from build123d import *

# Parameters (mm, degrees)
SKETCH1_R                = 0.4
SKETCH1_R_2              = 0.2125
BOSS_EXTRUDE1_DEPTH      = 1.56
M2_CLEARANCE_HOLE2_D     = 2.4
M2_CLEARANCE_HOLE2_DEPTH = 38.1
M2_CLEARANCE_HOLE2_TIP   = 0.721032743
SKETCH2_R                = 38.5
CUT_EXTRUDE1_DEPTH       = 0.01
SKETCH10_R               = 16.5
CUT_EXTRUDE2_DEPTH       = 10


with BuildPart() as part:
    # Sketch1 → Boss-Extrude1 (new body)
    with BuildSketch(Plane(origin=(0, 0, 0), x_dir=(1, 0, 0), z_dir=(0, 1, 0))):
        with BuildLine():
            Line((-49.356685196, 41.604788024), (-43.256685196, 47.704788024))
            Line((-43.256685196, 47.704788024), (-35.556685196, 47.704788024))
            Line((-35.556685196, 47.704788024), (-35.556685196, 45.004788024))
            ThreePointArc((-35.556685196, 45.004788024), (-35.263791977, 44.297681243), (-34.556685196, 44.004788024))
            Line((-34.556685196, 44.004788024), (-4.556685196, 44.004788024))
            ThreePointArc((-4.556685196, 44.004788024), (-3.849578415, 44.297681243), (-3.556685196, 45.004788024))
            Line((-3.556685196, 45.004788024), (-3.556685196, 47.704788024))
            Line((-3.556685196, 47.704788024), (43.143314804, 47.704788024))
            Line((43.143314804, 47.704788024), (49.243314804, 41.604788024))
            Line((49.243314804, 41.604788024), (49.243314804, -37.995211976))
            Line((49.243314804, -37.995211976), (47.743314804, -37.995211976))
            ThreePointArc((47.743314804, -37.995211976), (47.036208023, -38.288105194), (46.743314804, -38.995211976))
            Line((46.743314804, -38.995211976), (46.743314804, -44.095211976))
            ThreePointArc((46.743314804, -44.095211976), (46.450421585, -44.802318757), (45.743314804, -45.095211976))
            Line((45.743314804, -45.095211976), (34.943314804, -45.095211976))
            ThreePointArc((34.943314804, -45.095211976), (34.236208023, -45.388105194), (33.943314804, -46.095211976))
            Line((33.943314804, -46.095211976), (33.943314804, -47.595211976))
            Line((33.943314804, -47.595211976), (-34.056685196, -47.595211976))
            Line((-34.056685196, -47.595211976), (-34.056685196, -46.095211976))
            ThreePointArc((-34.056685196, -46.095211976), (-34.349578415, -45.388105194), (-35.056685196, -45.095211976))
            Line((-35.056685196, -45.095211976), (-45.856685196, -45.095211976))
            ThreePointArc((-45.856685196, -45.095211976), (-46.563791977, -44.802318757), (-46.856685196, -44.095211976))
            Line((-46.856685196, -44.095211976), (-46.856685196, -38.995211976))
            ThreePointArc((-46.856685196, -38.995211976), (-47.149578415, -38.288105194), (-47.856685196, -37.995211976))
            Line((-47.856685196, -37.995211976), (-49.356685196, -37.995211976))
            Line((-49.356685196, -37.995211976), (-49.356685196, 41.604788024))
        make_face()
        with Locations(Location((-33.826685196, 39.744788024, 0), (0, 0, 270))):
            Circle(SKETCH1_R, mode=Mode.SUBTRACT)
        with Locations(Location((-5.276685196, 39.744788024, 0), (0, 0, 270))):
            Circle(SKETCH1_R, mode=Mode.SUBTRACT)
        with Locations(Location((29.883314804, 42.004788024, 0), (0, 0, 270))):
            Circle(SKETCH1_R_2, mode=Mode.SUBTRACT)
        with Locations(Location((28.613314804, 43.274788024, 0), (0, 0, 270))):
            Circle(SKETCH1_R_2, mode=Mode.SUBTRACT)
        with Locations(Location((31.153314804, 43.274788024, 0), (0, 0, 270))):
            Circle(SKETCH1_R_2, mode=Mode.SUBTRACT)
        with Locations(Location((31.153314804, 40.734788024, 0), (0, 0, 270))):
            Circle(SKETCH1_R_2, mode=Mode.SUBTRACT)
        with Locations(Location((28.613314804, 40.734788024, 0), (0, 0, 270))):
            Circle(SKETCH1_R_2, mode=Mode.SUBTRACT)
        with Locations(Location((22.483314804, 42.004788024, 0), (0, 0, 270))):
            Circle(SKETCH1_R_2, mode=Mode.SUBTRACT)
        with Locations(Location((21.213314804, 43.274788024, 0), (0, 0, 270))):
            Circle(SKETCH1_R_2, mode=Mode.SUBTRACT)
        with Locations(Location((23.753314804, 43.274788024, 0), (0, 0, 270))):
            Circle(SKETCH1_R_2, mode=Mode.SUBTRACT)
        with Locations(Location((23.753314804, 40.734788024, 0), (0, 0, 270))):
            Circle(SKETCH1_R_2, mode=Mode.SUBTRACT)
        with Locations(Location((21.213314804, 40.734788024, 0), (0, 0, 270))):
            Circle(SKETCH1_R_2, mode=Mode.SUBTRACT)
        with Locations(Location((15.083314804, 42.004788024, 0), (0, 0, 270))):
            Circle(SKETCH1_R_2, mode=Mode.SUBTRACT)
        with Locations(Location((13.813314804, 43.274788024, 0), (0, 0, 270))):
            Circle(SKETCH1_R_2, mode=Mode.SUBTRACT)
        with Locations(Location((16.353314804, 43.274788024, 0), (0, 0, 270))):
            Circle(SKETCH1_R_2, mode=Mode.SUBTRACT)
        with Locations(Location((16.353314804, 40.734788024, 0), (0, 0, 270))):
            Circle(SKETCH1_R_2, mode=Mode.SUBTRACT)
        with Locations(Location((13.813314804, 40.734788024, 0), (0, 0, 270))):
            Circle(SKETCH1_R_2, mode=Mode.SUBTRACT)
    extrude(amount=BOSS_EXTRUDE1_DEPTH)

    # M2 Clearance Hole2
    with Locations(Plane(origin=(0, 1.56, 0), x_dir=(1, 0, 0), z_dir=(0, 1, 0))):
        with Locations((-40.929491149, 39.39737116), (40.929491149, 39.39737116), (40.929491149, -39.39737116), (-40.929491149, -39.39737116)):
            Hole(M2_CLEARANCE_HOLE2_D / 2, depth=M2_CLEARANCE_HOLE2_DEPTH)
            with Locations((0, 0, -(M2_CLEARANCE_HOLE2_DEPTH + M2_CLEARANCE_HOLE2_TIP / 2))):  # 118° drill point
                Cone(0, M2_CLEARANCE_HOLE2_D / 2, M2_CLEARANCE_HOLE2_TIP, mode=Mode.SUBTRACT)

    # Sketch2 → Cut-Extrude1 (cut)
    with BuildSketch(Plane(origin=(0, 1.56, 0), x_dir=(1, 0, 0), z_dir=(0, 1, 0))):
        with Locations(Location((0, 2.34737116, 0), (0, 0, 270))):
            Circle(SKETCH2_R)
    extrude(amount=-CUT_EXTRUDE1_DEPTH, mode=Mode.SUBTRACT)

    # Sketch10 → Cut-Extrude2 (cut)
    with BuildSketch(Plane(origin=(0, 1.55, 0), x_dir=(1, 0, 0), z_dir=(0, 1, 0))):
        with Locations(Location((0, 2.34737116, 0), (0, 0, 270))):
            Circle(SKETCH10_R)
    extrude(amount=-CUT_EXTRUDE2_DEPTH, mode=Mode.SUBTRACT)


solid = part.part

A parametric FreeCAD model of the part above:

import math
import FreeCAD as App
import Part
import Sketcher
Q = App.Units.Quantity

doc = App.newDocument("Part")
params = doc.addObject("Spreadsheet::Sheet", "Params")
for row, (alias, value) in enumerate([
    ("sketch1_radius", "1 mm"),
    ("sketch1_diameter", "0.8 mm"),
    ("sketch1_width", "68 mm"),
    ("sketch1_width2", "30 mm"),
    ("sketch1_width3", "1.5 mm"),
    ("pad1_length", "1.56 mm"),
    ("sketch2_diameter", "2.4 mm"),
    ("hole_diameter", "2.4 mm"),
    ("hole_depth", "38.1 mm"),
    ("sketch3_diameter", "77 mm"),
    ("pocket1_length", "0.01 mm"),
    ("sketch4_diameter", "33 mm"),
    ("pocket2_length", "10 mm"),
], start=1):
    params.set(f"A{row}", alias)
    params.set(f"B{row}", "=" + value)
    params.setAlias(f"B{row}", alias)

body = doc.addObject("PartDesign::Body", "Body")

# Sketch on XZ plane
sketch1 = doc.addObject("Sketcher::SketchObject", "Sketch")
body.addObject(sketch1)
sketch1.AttachmentSupport = (doc.XZ_Plane, [""])
sketch1.MapMode = "FlatFace"
sketch1.addGeometry([
    Part.LineSegment(App.Vector(-43.26, -47.7, 0), App.Vector(-49.36, -41.6, 0)),  # 0
    Part.LineSegment(App.Vector(-49.36, -41.6, 0), App.Vector(-49.36, 38, 0)),  # 1
    Part.LineSegment(App.Vector(-49.36, 38, 0), App.Vector(-47.86, 38, 0)),  # 2
    Part.ArcOfCircle(Part.Circle(App.Vector(-47.86, 39, 0), App.Vector(0, 0, 1), 1), math.radians(-90), math.radians(0)),  # 3
    Part.LineSegment(App.Vector(-46.86, 39, 0), App.Vector(-46.86, 44.1, 0)),  # 4
    Part.ArcOfCircle(Part.Circle(App.Vector(-45.86, 44.1, 0), App.Vector(0, 0, 1), 1), math.radians(90), math.radians(180)),  # 5
    Part.LineSegment(App.Vector(-45.86, 45.1, 0), App.Vector(-35.06, 45.1, 0)),  # 6
    Part.ArcOfCircle(Part.Circle(App.Vector(-35.06, 46.1, 0), App.Vector(0, 0, 1), 1), math.radians(-90), math.radians(0)),  # 7
    Part.LineSegment(App.Vector(-34.06, 46.1, 0), App.Vector(-34.06, 47.6, 0)),  # 8
    Part.LineSegment(App.Vector(-34.06, 47.6, 0), App.Vector(33.94, 47.6, 0)),  # 9
    Part.LineSegment(App.Vector(33.94, 47.6, 0), App.Vector(33.94, 46.1, 0)),  # 10
    Part.ArcOfCircle(Part.Circle(App.Vector(34.94, 46.1, 0), App.Vector(0, 0, 1), 1), math.radians(180), math.radians(270)),  # 11
    Part.LineSegment(App.Vector(34.94, 45.1, 0), App.Vector(45.74, 45.1, 0)),  # 12
    Part.ArcOfCircle(Part.Circle(App.Vector(45.74, 44.1, 0), App.Vector(0, 0, 1), 1), math.radians(0), math.radians(90)),  # 13
    Part.LineSegment(App.Vector(46.74, 44.1, 0), App.Vector(46.74, 39, 0)),  # 14
    Part.ArcOfCircle(Part.Circle(App.Vector(47.74, 39, 0), App.Vector(0, 0, 1), 1), math.radians(180), math.radians(270)),  # 15
    Part.LineSegment(App.Vector(47.74, 38, 0), App.Vector(49.24, 38, 0)),  # 16
    Part.LineSegment(App.Vector(49.24, 38, 0), App.Vector(49.24, -41.6, 0)),  # 17
    Part.LineSegment(App.Vector(49.24, -41.6, 0), App.Vector(43.14, -47.7, 0)),  # 18
    Part.LineSegment(App.Vector(43.14, -47.7, 0), App.Vector(-3.56, -47.7, 0)),  # 19
    Part.LineSegment(App.Vector(-3.56, -47.7, 0), App.Vector(-3.56, -45, 0)),  # 20
    Part.ArcOfCircle(Part.Circle(App.Vector(-4.56, -45, 0), App.Vector(0, 0, 1), 1), math.radians(0), math.radians(90)),  # 21
    Part.LineSegment(App.Vector(-4.56, -44, 0), App.Vector(-34.56, -44, 0)),  # 22
    Part.ArcOfCircle(Part.Circle(App.Vector(-34.56, -45, 0), App.Vector(0, 0, 1), 1), math.radians(90), math.radians(180)),  # 23
    Part.LineSegment(App.Vector(-35.56, -45, 0), App.Vector(-35.56, -47.7, 0)),  # 24
    Part.LineSegment(App.Vector(-35.56, -47.7, 0), App.Vector(-43.26, -47.7, 0)),  # 25
    Part.Circle(App.Vector(31.15, -40.73, 0), App.Vector(0, 0, 1), 0.21),  # 26
    Part.Circle(App.Vector(28.61, -40.73, 0), App.Vector(0, 0, 1), 0.21),  # 27
    Part.Circle(App.Vector(23.75, -40.73, 0), App.Vector(0, 0, 1), 0.21),  # 28
    Part.Circle(App.Vector(21.21, -40.73, 0), App.Vector(0, 0, 1), 0.21),  # 29
    Part.Circle(App.Vector(16.35, -40.73, 0), App.Vector(0, 0, 1), 0.21),  # 30
    Part.Circle(App.Vector(13.81, -40.73, 0), App.Vector(0, 0, 1), 0.21),  # 31
    Part.Circle(App.Vector(-5.28, -39.74, 0), App.Vector(0, 0, 1), 0.4),  # 32
    Part.Circle(App.Vector(-33.83, -39.74, 0), App.Vector(0, 0, 1), 0.4),  # 33
    Part.Circle(App.Vector(29.88, -42, 0), App.Vector(0, 0, 1), 0.21),  # 34
    Part.Circle(App.Vector(22.48, -42, 0), App.Vector(0, 0, 1), 0.21),  # 35
    Part.Circle(App.Vector(15.08, -42, 0), App.Vector(0, 0, 1), 0.21),  # 36
    Part.Circle(App.Vector(31.15, -43.27, 0), App.Vector(0, 0, 1), 0.21),  # 37
    Part.Circle(App.Vector(28.61, -43.27, 0), App.Vector(0, 0, 1), 0.21),  # 38
    Part.Circle(App.Vector(23.75, -43.27, 0), App.Vector(0, 0, 1), 0.21),  # 39
    Part.Circle(App.Vector(21.21, -43.27, 0), App.Vector(0, 0, 1), 0.21),  # 40
    Part.Circle(App.Vector(16.35, -43.27, 0), App.Vector(0, 0, 1), 0.21),  # 41
    Part.Circle(App.Vector(13.81, -43.27, 0), App.Vector(0, 0, 1), 0.21),  # 42
], False)
sketch1.addConstraint([
    Sketcher.Constraint("Coincident", 0, 2, 1, 1),
    Sketcher.Constraint("Coincident", 1, 2, 2, 1),
    Sketcher.Constraint("Tangent", 2, 2, 3, 1),
    Sketcher.Constraint("Tangent", 3, 2, 4, 1),
    Sketcher.Constraint("Tangent", 4, 2, 5, 2),
    Sketcher.Constraint("Tangent", 5, 1, 6, 1),
    Sketcher.Constraint("Tangent", 6, 2, 7, 1),
    Sketcher.Constraint("Tangent", 7, 2, 8, 1),
    Sketcher.Constraint("Coincident", 8, 2, 9, 1),
    Sketcher.Constraint("Coincident", 9, 2, 10, 1),
    Sketcher.Constraint("Tangent", 10, 2, 11, 1),
    Sketcher.Constraint("Tangent", 11, 2, 12, 1),
    Sketcher.Constraint("Tangent", 12, 2, 13, 2),
    Sketcher.Constraint("Tangent", 13, 1, 14, 1),
    Sketcher.Constraint("Tangent", 14, 2, 15, 1),
    Sketcher.Constraint("Tangent", 15, 2, 16, 1),
    Sketcher.Constraint("Coincident", 16, 2, 17, 1),
    Sketcher.Constraint("Coincident", 17, 2, 18, 1),
    Sketcher.Constraint("Coincident", 18, 2, 19, 1),
    Sketcher.Constraint("Coincident", 19, 2, 20, 1),
    Sketcher.Constraint("Tangent", 20, 2, 21, 1),
    Sketcher.Constraint("Tangent", 21, 2, 22, 1),
    Sketcher.Constraint("Tangent", 22, 2, 23, 1),
    Sketcher.Constraint("Tangent", 23, 2, 24, 1),
    Sketcher.Constraint("Coincident", 24, 2, 25, 1),
    Sketcher.Constraint("Coincident", 25, 2, 0, 1),
    Sketcher.Constraint("Vertical", 1),
    Sketcher.Constraint("Horizontal", 2),
    Sketcher.Constraint("Vertical", 4),
    Sketcher.Constraint("Horizontal", 6),
    Sketcher.Constraint("Vertical", 8),
    Sketcher.Constraint("Horizontal", 9),
    Sketcher.Constraint("Vertical", 10),
    Sketcher.Constraint("Horizontal", 12),
    Sketcher.Constraint("Vertical", 14),
    Sketcher.Constraint("Horizontal", 16),
    Sketcher.Constraint("Vertical", 17),
    Sketcher.Constraint("Horizontal", 19),
    Sketcher.Constraint("Vertical", 20),
    Sketcher.Constraint("Horizontal", 22),
    Sketcher.Constraint("Vertical", 24),
    Sketcher.Constraint("Horizontal", 25),
    Sketcher.Constraint("Equal", 3, 5),
    Sketcher.Constraint("Equal", 5, 7),
    Sketcher.Constraint("Equal", 7, 11),
    Sketcher.Constraint("Equal", 11, 13),
    Sketcher.Constraint("Equal", 13, 15),
    Sketcher.Constraint("Equal", 15, 21),
    Sketcher.Constraint("Equal", 21, 23),
    Sketcher.Constraint("Equal", 26, 27),
    Sketcher.Constraint("Equal", 27, 28),
    Sketcher.Constraint("Equal", 28, 29),
    Sketcher.Constraint("Equal", 29, 30),
    Sketcher.Constraint("Equal", 30, 31),
    Sketcher.Constraint("Equal", 32, 33),
    Sketcher.Constraint("Equal", 31, 34),
    Sketcher.Constraint("Equal", 34, 35),
    Sketcher.Constraint("Equal", 35, 36),
    Sketcher.Constraint("Equal", 36, 37),
    Sketcher.Constraint("Equal", 37, 38),
    Sketcher.Constraint("Equal", 38, 39),
    Sketcher.Constraint("Equal", 39, 40),
    Sketcher.Constraint("Equal", 40, 41),
    Sketcher.Constraint("Equal", 41, 42),
    Sketcher.Constraint("Perpendicular", 0, 18),
    Sketcher.Constraint("Horizontal", 7, 3, 11, 3),
    Sketcher.Constraint("Horizontal", 3, 3, 15, 3),
    Sketcher.Constraint("Horizontal", 26, 3, 27, 3),
    Sketcher.Constraint("Horizontal", 27, 3, 28, 3),
    Sketcher.Constraint("Horizontal", 28, 3, 29, 3),
    Sketcher.Constraint("Horizontal", 29, 3, 30, 3),
    Sketcher.Constraint("Horizontal", 30, 3, 31, 3),
    Sketcher.Constraint("Horizontal", 32, 3, 33, 3),
    Sketcher.Constraint("Horizontal", 34, 3, 35, 3),
    Sketcher.Constraint("Horizontal", 35, 3, 36, 3),
    Sketcher.Constraint("Horizontal", 37, 3, 38, 3),
    Sketcher.Constraint("Horizontal", 38, 3, 39, 3),
    Sketcher.Constraint("Horizontal", 39, 3, 40, 3),
    Sketcher.Constraint("Horizontal", 40, 3, 41, 3),
    Sketcher.Constraint("Horizontal", 41, 3, 42, 3),
    Sketcher.Constraint("Horizontal", 0, 2, 17, 2),
    Sketcher.Constraint("Horizontal", 19, 2, 24, 2),
    Sketcher.Constraint("Vertical", 26, 3, 37, 3),
    Sketcher.Constraint("Vertical", 27, 3, 38, 3),
    Sketcher.Constraint("Vertical", 28, 3, 39, 3),
    Sketcher.Constraint("Vertical", 29, 3, 40, 3),
    Sketcher.Constraint("Vertical", 30, 3, 41, 3),
    Sketcher.Constraint("Vertical", 31, 3, 42, 3),
    Sketcher.Constraint("Equal", 6, 12),
    Sketcher.Constraint("Equal", 2, 16),
    Sketcher.Constraint("Equal", 16, 8),
    Sketcher.Constraint("Equal", 0, 18),
    Sketcher.Constraint("Radius", 3, Q("1 mm")),
    Sketcher.Constraint("Diameter", 32, Q("0.8 mm")),
    Sketcher.Constraint("DistanceX", 9, 1, 9, 2, Q("68 mm")),
    Sketcher.Constraint("DistanceX", 22, 2, 22, 1, Q("30 mm")),
    Sketcher.Constraint("Diameter", 26, Q("0.425 mm")),
    Sketcher.Constraint("DistanceX", 2, 1, 2, 2, Q("1.5 mm")),
    Sketcher.Constraint("DistanceX", 6, 1, 6, 2, Q("10.8 mm")),
    Sketcher.Constraint("DistanceX", 19, 2, 19, 1, Q("46.7 mm")),
    Sketcher.Constraint("DistanceX", 25, 2, 25, 1, Q("7.7 mm")),
    Sketcher.Constraint("DistanceY", 1, 1, 1, 2, Q("79.6 mm")),
    Sketcher.Constraint("DistanceY", 4, 1, 4, 2, Q("5.1 mm")),
    Sketcher.Constraint("DistanceY", 20, 1, 20, 2, Q("2.7 mm")),
    Sketcher.Constraint("DistanceX", 28, 3, 26, 3, Q("7.4 mm")),
    Sketcher.Constraint("DistanceX", 29, 3, 27, 3, Q("7.4 mm")),
    Sketcher.Constraint("DistanceX", 30, 3, 28, 3, Q("7.4 mm")),
    Sketcher.Constraint("DistanceX", 31, 3, 29, 3, Q("7.4 mm")),
    Sketcher.Constraint("DistanceX", 35, 3, 34, 3, Q("7.4 mm")),
    Sketcher.Constraint("DistanceX", 36, 3, 35, 3, Q("7.4 mm")),
    Sketcher.Constraint("DistanceY", 34, 3, 17, 2, Q("0.4 mm")),
    Sketcher.Constraint("DistanceX", 21, 3, 26, 3, Q("35.71 mm")),
    Sketcher.Constraint("DistanceY", 21, 3, 26, 3, Q("4.27 mm")),
    Sketcher.Constraint("DistanceX", 27, 3, 26, 3, Q("2.54 mm")),
    Sketcher.Constraint("DistanceX", 32, 3, 21, 3, Q("0.72 mm")),
    Sketcher.Constraint("DistanceY", 21, 3, 32, 3, Q("5.26 mm")),
    Sketcher.Constraint("DistanceX", 23, 3, 33, 3, Q("0.73 mm")),
    Sketcher.Constraint("DistanceX", 34, 3, 26, 3, Q("1.27 mm")),
    Sketcher.Constraint("DistanceY", 37, 3, 34, 3, Q("1.27 mm")),
    Sketcher.Constraint("DistanceY", -1, 1, 3, 3, Q("38.995212 mm")),
    Sketcher.Constraint("DistanceX", 3, 3, -1, 1, Q("47.856685 mm")),
])
sketch1.setExpression("Constraints[92]", "Params.sketch1_radius")
sketch1.setExpression("Constraints[93]", "Params.sketch1_diameter")
sketch1.setExpression("Constraints[94]", "Params.sketch1_width")
sketch1.setExpression("Constraints[95]", "Params.sketch1_width2")
sketch1.setExpression("Constraints[97]", "Params.sketch1_width3")
pad1 = doc.addObject("PartDesign::Pad", "Pad")
body.addObject(pad1)
pad1.Profile = sketch1
pad1.setExpression("Length", "Params.pad1_length")
pad1.Reversed = True

# Sketch on XZ plane
sketch2 = doc.addObject("Sketcher::SketchObject", "Sketch001")
body.addObject(sketch2)
sketch2.AttachmentSupport = (doc.XZ_Plane, [""])
sketch2.MapMode = "FlatFace"
sketch2.AttachmentOffset = App.Placement(App.Vector(0, 0, -1.56), App.Rotation())
sketch2.addGeometry([
    Part.Circle(App.Vector(-40.9, -39.4, 0), App.Vector(0, 0, 1), 1.2),
    Part.Circle(App.Vector(40.9, -39.4, 0), App.Vector(0, 0, 1), 1.2),
    Part.Circle(App.Vector(40.9, 39.4, 0), App.Vector(0, 0, 1), 1.2),
    Part.Circle(App.Vector(-40.9, 39.4, 0), App.Vector(0, 0, 1), 1.2),
], False)
sketch2.addConstraint([
    Sketcher.Constraint("Equal", 0, 1),
    Sketcher.Constraint("Equal", 1, 2),
    Sketcher.Constraint("Equal", 2, 3),
    Sketcher.Constraint("Symmetric", 0, 3, 2, 3, -1, 1),
    Sketcher.Constraint("Symmetric", 1, 3, 3, 3, -1, 1),
    Sketcher.Constraint("Symmetric", 0, 3, 1, 3, -2),
    Sketcher.Constraint("Diameter", 0, Q("2.4 mm")),
    Sketcher.Constraint("DistanceX", 0, 3, -1, 1, Q("40.929491 mm")),
    Sketcher.Constraint("DistanceY", 0, 3, -1, 1, Q("39.397371 mm")),
])
sketch2.setExpression("Constraints[6]", "Params.sketch2_diameter")
doc.recompute()
hole = doc.addObject("PartDesign::Hole", "Hole")
body.addObject(hole)
hole.Profile = sketch2
hole.ThreadType = "None"
hole.setExpression("Diameter", "Params.hole_diameter")
hole.DepthType = "Dimension"
hole.setExpression("Depth", "Params.hole_depth")
hole.DrillPoint = "Angled"
hole.DrillPointAngle = 118
hole.Reversed = True

# Sketch on XZ plane
sketch3 = doc.addObject("Sketcher::SketchObject", "Sketch002")
body.addObject(sketch3)
sketch3.AttachmentSupport = (doc.XZ_Plane, [""])
sketch3.MapMode = "FlatFace"
sketch3.AttachmentOffset = App.Placement(App.Vector(0, 0, -1.56), App.Rotation())
sketch3.addGeometry(Part.Circle(App.Vector(0, -2, 0), App.Vector(0, 0, 1), 38), False)
sketch3.addConstraint([
    Sketcher.Constraint("PointOnObject", 0, 3, -2),
    Sketcher.Constraint("Diameter", 0, Q("77 mm")),
    Sketcher.Constraint("DistanceY", 0, 3, -1, 1, Q("2.347371 mm")),
])
sketch3.setExpression("Constraints[1]", "Params.sketch3_diameter")
pocket1 = doc.addObject("PartDesign::Pocket", "Pocket")
body.addObject(pocket1)
pocket1.Profile = sketch3
pocket1.setExpression("Length", "Params.pocket1_length")
pocket1.Reversed = True

# Sketch on XZ plane
sketch4 = doc.addObject("Sketcher::SketchObject", "Sketch003")
body.addObject(sketch4)
sketch4.AttachmentSupport = (doc.XZ_Plane, [""])
sketch4.MapMode = "FlatFace"
sketch4.AttachmentOffset = App.Placement(App.Vector(0, 0, -1.55), App.Rotation())
sketch4.addGeometry(Part.Circle(App.Vector(0, -2, 0), App.Vector(0, 0, 1), 16), False)
sketch4.addConstraint([
    Sketcher.Constraint("PointOnObject", 0, 3, -2),
    Sketcher.Constraint("Diameter", 0, Q("33 mm")),
    Sketcher.Constraint("DistanceY", 0, 3, -1, 1, Q("2.347371 mm")),
])
sketch4.setExpression("Constraints[1]", "Params.sketch4_diameter")
pocket2 = doc.addObject("PartDesign::Pocket", "Pocket001")
body.addObject(pocket2)
pocket2.Profile = sketch4
pocket2.setExpression("Length", "Params.pocket2_length")
pocket2.Reversed = True

doc.recompute()
